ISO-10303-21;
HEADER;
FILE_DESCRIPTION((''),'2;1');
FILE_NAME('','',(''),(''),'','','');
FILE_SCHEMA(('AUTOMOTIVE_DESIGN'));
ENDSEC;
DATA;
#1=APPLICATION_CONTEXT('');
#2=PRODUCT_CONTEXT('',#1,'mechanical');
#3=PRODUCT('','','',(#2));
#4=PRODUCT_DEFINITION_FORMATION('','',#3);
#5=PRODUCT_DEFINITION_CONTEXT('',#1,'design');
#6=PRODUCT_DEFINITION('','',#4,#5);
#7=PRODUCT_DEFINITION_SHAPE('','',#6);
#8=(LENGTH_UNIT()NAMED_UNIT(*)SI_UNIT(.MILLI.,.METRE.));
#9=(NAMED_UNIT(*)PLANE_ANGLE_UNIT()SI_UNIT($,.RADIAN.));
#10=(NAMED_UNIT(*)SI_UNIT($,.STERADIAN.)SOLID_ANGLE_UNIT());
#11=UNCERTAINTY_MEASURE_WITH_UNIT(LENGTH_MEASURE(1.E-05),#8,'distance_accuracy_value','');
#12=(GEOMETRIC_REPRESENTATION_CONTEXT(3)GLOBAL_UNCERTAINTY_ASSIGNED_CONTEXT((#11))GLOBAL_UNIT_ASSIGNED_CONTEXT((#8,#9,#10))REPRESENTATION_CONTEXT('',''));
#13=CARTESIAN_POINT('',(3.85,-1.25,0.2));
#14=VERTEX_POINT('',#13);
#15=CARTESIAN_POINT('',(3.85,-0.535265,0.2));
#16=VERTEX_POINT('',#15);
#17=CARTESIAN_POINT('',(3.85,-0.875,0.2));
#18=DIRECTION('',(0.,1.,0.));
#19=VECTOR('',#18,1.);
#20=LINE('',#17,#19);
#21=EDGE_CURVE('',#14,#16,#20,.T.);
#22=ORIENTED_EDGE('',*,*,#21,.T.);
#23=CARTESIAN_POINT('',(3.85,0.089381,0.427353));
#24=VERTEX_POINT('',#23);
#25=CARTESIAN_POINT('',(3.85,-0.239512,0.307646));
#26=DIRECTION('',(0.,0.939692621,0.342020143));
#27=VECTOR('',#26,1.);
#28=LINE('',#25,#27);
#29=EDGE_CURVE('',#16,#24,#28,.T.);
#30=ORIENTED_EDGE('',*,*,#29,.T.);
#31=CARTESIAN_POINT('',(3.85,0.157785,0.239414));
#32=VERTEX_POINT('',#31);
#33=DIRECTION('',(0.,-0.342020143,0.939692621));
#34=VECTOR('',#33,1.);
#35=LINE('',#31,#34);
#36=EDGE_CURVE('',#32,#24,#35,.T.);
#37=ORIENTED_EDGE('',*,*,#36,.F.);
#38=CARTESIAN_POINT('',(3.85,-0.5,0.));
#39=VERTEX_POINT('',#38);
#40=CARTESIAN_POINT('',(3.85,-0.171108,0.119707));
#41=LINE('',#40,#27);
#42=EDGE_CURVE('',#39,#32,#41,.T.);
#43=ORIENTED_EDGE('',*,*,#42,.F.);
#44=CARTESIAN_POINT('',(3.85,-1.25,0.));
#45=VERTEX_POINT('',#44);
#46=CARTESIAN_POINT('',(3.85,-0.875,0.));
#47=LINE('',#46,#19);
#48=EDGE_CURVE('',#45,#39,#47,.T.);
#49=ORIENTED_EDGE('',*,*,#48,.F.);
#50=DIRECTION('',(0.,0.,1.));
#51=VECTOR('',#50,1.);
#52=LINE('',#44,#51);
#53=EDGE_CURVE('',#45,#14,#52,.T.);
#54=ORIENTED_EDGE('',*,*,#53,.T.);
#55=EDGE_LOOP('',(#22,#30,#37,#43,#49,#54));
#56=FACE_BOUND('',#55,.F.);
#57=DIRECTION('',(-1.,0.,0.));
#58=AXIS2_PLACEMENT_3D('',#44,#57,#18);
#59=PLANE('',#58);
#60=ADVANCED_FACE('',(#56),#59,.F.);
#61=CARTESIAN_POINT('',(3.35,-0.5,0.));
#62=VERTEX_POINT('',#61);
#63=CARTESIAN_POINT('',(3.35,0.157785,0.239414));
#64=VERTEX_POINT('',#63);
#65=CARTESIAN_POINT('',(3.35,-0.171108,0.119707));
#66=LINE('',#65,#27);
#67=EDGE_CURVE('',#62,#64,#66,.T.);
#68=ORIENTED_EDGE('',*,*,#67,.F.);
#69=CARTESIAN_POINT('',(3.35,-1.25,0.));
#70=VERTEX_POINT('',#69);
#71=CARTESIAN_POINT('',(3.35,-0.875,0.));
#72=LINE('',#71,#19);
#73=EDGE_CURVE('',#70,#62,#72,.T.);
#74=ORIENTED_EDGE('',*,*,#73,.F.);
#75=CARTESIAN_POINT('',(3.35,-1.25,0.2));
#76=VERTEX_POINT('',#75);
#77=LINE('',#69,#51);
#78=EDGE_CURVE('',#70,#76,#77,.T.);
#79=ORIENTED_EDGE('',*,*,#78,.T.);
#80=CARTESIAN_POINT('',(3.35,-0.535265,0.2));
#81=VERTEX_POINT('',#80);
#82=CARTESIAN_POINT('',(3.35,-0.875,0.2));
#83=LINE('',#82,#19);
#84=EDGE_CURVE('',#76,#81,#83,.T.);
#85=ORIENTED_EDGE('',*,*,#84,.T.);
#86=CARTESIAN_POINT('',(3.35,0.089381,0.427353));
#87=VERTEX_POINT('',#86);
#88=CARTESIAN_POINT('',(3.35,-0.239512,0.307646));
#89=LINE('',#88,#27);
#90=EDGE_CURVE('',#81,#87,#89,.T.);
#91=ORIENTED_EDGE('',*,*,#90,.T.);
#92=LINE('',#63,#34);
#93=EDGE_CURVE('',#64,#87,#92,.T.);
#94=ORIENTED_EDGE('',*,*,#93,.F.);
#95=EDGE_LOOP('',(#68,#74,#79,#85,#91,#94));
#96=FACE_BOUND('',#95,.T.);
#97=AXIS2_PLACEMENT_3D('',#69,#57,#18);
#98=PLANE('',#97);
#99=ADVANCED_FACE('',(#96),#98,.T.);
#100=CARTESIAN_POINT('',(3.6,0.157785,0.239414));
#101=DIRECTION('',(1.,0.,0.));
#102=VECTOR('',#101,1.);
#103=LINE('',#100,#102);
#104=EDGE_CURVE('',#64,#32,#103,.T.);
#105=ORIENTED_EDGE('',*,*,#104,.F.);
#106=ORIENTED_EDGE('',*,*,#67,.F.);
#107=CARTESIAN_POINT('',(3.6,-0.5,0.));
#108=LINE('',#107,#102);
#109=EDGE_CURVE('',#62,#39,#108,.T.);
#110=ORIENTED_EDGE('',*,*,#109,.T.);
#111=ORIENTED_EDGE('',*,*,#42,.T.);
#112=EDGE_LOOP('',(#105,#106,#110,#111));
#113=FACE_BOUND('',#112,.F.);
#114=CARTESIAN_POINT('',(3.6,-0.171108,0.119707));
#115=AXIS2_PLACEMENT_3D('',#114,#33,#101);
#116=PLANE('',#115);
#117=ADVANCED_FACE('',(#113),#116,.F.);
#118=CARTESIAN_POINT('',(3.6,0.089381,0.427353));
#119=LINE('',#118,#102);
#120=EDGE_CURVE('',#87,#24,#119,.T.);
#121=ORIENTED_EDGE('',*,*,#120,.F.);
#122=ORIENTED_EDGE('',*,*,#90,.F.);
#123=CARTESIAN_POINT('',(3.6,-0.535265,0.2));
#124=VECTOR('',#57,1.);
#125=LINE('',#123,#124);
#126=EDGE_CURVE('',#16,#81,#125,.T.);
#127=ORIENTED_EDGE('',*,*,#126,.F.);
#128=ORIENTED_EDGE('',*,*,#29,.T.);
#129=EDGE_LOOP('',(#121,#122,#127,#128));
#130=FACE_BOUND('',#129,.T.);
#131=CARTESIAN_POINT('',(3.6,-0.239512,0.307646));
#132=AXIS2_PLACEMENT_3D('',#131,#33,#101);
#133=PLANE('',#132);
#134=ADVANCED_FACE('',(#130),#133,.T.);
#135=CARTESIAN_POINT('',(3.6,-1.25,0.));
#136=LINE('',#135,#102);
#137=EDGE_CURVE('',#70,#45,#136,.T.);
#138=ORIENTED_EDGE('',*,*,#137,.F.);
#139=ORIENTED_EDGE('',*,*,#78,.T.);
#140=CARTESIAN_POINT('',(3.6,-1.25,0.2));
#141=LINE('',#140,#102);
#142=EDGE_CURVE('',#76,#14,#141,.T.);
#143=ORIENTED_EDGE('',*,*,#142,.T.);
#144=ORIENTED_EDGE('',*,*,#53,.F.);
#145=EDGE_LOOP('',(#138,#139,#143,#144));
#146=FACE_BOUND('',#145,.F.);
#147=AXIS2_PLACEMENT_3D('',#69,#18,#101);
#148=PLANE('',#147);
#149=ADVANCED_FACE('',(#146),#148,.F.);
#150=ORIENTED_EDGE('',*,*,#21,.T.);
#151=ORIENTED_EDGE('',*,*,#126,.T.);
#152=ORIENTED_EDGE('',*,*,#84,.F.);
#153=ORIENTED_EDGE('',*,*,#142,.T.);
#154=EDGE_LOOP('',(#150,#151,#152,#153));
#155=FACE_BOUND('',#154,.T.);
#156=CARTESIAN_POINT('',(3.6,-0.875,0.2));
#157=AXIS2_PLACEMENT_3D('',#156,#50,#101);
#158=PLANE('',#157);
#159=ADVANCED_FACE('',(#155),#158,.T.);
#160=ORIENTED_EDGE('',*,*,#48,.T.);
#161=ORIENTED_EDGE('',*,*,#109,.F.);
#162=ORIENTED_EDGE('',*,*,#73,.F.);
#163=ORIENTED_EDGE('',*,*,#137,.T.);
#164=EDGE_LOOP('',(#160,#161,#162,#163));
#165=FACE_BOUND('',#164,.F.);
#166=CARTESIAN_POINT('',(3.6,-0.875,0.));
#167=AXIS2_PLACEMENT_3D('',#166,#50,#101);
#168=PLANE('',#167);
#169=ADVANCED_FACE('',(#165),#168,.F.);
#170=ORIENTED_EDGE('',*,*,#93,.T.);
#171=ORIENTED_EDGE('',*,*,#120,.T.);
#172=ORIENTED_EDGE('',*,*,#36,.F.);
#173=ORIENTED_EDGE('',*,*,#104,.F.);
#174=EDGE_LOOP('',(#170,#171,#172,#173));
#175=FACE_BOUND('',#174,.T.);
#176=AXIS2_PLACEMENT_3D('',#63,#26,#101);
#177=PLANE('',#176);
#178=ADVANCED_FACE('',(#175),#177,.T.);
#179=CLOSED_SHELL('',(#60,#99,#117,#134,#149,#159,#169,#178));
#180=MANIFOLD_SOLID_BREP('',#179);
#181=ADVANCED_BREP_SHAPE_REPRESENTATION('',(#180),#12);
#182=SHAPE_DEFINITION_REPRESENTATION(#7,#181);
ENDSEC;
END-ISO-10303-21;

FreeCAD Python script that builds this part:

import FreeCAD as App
import Part
import Sketcher

V = App.Vector
Q = App.Units.Quantity

doc = App.newDocument("Part")
body = doc.addObject("PartDesign::Body", "Body")

# Sketch on XY plane
sketch1 = body.newObject("Sketcher::SketchObject", "Sketch")
sketch1.AttachmentSupport = (doc.getObject("XY_Plane"), [""])
sketch1.MapMode = "FlatFace"
sketch1.addGeometry([
    Part.LineSegment(V(0, -0.5, 0), V(0, -1.2, 0)),
    Part.LineSegment(V(0, -1.2, 0), V(0.5, -1.2, 0)),
    Part.LineSegment(V(0.5, -1.2, 0), V(0.5, -0.5, 0)),
    Part.LineSegment(V(0.5, -0.5, 0), V(0, -0.5, 0)),
], False)
sketch1.addConstraint([
    Sketcher.Constraint("Coincident", 0, 2, 1, 1),
    Sketcher.Constraint("Coincident", 1, 2, 2, 1),
    Sketcher.Constraint("Coincident", 2, 2, 3, 1),
    Sketcher.Constraint("Coincident", 3, 2, 0, 1),
    Sketcher.Constraint("Vertical", 0),
    Sketcher.Constraint("Horizontal", 1),
    Sketcher.Constraint("Vertical", 2),
    Sketcher.Constraint("Horizontal", 3),
    Sketcher.Constraint("PointOnObject", 0, 2, -2),
    Sketcher.Constraint("DistanceX", 1, 1, 1, 2, Q("0.5 mm")),
    Sketcher.Constraint("DistanceY", 0, 2, 0, 1, Q("0.75 mm")),
    Sketcher.Constraint("DistanceY", 2, 2, -1, 1, Q("0.5 mm")),
])
pad1 = body.newObject("PartDesign::Pad", "Pad")
pad1.Profile = sketch1
pad1.Length = 0.2
body2 = doc.addObject("PartDesign::Body", "Body001")

# Sketch on XY plane
sketch2 = body2.newObject("Sketcher::SketchObject", "Sketch001")
sketch2.AttachmentSupport = (doc.getObject("XY_Plane001"), [""])
sketch2.MapMode = "FlatFace"
sketch2.addGeometry([
    Part.LineSegment(V(0, 0.7, 0), V(0, 0, 0)),
    Part.LineSegment(V(0, 0, 0), V(0.5, 0, 0)),
    Part.LineSegment(V(0.5, 0, 0), V(0.5, 0.7, 0)),
    Part.LineSegment(V(0.5, 0.7, 0), V(0, 0.7, 0)),
], False)
sketch2.addConstraint([
    Sketcher.Constraint("Coincident", 0, 2, 1, 1),
    Sketcher.Constraint("Coincident", 1, 2, 2, 1),
    Sketcher.Constraint("Coincident", 2, 2, 3, 1),
    Sketcher.Constraint("Coincident", 3, 2, 0, 1),
    Sketcher.Constraint("Vertical", 0),
    Sketcher.Constraint("Horizontal", 1),
    Sketcher.Constraint("Vertical", 2),
    Sketcher.Constraint("Horizontal", 3),
    Sketcher.Constraint("Coincident", 0, 2, -1, 1),
    Sketcher.Constraint("DistanceX", 1, 1, 1, 2, Q("0.5 mm")),
    Sketcher.Constraint("DistanceY", 0, 2, 0, 1, Q("0.7 mm")),
])
pad2 = body2.newObject("PartDesign::Pad", "Pad001")
pad2.Profile = sketch2
pad2.Length = 0.2
body3 = doc.addObject("PartDesign::Body", "Body002")
doc.recompute()

body2.Placement = App.Placement(V(0, -0.5, 0), App.Rotation(V(1, 0, 0), 20))
boolean = body3.newObject("PartDesign::Boolean", "Boolean")
boolean.Type = "Fuse"
boolean.addObjects([body2])
doc.recompute()

boolean2 = body3.newObject("PartDesign::Boolean", "Boolean001")
boolean2.Type = "Fuse"
boolean2.addObjects([body])
body4 = doc.addObject("PartDesign::Body", "Body003")
doc.recompute()

body3.Placement = App.Placement(V(3.35, 0, 0), App.Rotation(V(0, 0, 1), 0))
boolean3 = body4.newObject("PartDesign::Boolean", "Boolean002")
boolean3.Type = "Fuse"
boolean3.addObjects([body3])

doc.recompute()
